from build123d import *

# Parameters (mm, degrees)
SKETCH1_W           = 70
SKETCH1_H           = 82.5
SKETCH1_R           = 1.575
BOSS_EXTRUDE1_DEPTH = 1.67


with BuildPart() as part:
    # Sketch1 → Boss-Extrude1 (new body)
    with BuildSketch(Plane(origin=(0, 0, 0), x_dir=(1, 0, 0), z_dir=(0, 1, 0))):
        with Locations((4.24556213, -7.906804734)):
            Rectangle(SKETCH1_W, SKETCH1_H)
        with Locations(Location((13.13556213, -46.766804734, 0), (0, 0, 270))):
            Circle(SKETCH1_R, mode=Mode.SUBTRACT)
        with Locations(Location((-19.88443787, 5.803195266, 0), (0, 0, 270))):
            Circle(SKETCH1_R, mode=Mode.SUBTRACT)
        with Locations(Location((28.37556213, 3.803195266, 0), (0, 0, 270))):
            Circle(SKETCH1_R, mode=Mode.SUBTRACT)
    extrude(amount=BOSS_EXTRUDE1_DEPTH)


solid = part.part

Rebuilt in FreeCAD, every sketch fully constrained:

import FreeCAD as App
import Part
import Sketcher
from FreeCAD import Vector
Q = App.Units.Quantity

doc = App.newDocument("Part")
params = doc.addObject("Spreadsheet::Sheet", "Params")
for row, (alias, value) in enumerate([
    ("sketch1_diameter", "3.15 mm"),
    ("sketch1_width", "70 mm"),
    ("sketch1_height", "82.5 mm"),
    ("pad1_length", "1.67 mm"),
], start=1):
    params.set(f"A{row}", alias)
    params.set(f"B{row}", "=" + value)
    params.setAlias(f"B{row}", alias)

body = doc.addObject("PartDesign::Body", "Body")

# Sketch on XZ plane
sketch1 = doc.addObject("Sketcher::SketchObject", "Sketch")
body.addObject(sketch1)
sketch1.AttachmentSupport = (doc.XZ_Plane, [""])
sketch1.MapMode = "FlatFace"
sketch1.addGeometry(Part.LineSegment(Vector(-30.754438, -33.343195, 0), Vector(-30.754438, 49.156805, 0)), False)
sketch1.addGeometry(Part.LineSegment(Vector(-30.754438, 49.156805, 0), Vector(39.245562, 49.156805, 0)), False)
sketch1.addGeometry(Part.LineSegment(Vector(39.245562, 49.156805, 0), Vector(39.245562, -33.343195, 0)), False)
sketch1.addGeometry(Part.LineSegment(Vector(39.245562, -33.343195, 0), Vector(-30.754438, -33.343195, 0)), False)
sketch1.addGeometry(Part.Circle(Vector(13.135562, 46.766805, 0), Vector(0, 0, 1), 1.575), False)
sketch1.addGeometry(Part.Circle(Vector(-19.884438, -5.803195, 0), Vector(0, 0, 1), 1.575), False)
sketch1.addGeometry(Part.Circle(Vector(28.375562, -3.803195, 0), Vector(0, 0, 1), 1.575), False)
sketch1.addConstraint(Sketcher.Constraint("Coincident", 0, 2, 1, 1))
sketch1.addConstraint(Sketcher.Constraint("Coincident", 1, 2, 2, 1))
sketch1.addConstraint(Sketcher.Constraint("Coincident", 2, 2, 3, 1))
sketch1.addConstraint(Sketcher.Constraint("Coincident", 3, 2, 0, 1))
sketch1.addConstraint(Sketcher.Constraint("Vertical", 0))
sketch1.addConstraint(Sketcher.Constraint("Horizontal", 1))
sketch1.addConstraint(Sketcher.Constraint("Vertical", 2))
sketch1.addConstraint(Sketcher.Constraint("Horizontal", 3))
sketch1.addConstraint(Sketcher.Constraint("Equal", 4, 5))
sketch1.addConstraint(Sketcher.Constraint("Equal", 5, 6))
sketch1.addConstraint(Sketcher.Constraint("Diameter", 4, Q("3.15 mm")))
sketch1.addConstraint(Sketcher.Constraint("DistanceX", 1, 1, 1, 2, Q("70 mm")))
sketch1.addConstraint(Sketcher.Constraint("DistanceY", 0, 1, 0, 2, Q("82.5 mm")))
sketch1.addConstraint(Sketcher.Constraint("DistanceY", 5, 3, 6, 3, Q("2 mm")))
sketch1.addConstraint(Sketcher.Constraint("DistanceX", 5, 3, 4, 3, Q("33.02 mm")))
sketch1.addConstraint(Sketcher.Constraint("DistanceY", 5, 3, 4, 3, Q("52.57 mm")))
sketch1.addConstraint(Sketcher.Constraint("DistanceX", 5, 3, 6, 3, Q("48.26 mm")))
sketch1.addConstraint(Sketcher.Constraint("DistanceX", 0, 2, 4, 3, Q("43.89 mm")))
sketch1.addConstraint(Sketcher.Constraint("DistanceY", 4, 3, 0, 2, Q("2.39 mm")))
sketch1.addConstraint(Sketcher.Constraint("DistanceX", -1, 1, 4, 3, Q("13.135562 mm")))
sketch1.addConstraint(Sketcher.Constraint("DistanceY", -1, 1, 4, 3, Q("46.766805 mm")))
sketch1.setExpression("Constraints[10]", "Params.sketch1_diameter")
sketch1.setExpression("Constraints[11]", "Params.sketch1_width")
sketch1.setExpression("Constraints[12]", "Params.sketch1_height")
pad1 = doc.addObject("PartDesign::Pad", "Pad")
body.addObject(pad1)
pad1.Profile = sketch1
pad1.setExpression("Length", "Params.pad1_length")
pad1.Reversed = True

doc.recompute()
